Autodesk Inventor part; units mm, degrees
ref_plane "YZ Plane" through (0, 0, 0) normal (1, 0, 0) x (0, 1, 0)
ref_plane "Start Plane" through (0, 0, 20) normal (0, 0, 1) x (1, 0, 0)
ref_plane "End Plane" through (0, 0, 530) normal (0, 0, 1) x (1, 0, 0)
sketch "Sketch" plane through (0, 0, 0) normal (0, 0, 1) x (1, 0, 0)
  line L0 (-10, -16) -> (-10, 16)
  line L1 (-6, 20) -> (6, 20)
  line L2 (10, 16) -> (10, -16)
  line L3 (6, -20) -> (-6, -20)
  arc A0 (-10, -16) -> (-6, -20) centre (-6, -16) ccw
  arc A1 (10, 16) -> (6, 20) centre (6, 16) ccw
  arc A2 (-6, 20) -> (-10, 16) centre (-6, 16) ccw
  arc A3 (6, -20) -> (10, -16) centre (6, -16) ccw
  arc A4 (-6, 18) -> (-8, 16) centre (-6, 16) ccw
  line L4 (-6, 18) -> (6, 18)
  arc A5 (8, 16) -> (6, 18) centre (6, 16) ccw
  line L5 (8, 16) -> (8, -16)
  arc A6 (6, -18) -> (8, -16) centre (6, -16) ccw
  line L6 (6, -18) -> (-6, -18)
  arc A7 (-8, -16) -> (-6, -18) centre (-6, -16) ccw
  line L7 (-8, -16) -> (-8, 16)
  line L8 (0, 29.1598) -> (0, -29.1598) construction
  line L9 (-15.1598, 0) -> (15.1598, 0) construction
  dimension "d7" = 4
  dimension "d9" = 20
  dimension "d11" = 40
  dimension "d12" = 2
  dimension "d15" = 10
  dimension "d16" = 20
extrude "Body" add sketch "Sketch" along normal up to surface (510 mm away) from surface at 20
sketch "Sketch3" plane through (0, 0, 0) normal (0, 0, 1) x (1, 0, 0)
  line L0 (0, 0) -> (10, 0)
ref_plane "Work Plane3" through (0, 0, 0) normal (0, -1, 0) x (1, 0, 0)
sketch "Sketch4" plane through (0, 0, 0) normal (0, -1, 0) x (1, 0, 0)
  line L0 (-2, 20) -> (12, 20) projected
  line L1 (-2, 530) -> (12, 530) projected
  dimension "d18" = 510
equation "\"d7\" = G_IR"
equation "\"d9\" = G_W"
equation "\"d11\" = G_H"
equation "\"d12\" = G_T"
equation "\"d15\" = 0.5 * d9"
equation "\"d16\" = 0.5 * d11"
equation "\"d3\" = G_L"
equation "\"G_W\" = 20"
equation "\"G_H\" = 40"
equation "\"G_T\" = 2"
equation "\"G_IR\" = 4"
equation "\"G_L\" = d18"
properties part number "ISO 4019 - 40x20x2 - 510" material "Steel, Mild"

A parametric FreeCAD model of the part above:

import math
import FreeCAD as App
import Part
import Sketcher

doc = App.newDocument("Part")
params = doc.addObject("Spreadsheet::Sheet", "Params")
for row, (alias, value) in enumerate([
    ("sketch1_radius", "4 mm"),
    ("sketch1_radius2", "2 mm"),
    ("pad1_length", "510 mm"),
], start=1):
    params.set(f"A{row}", alias)
    params.set(f"B{row}", "=" + value)
    params.setAlias(f"B{row}", alias)

body = doc.addObject("PartDesign::Body", "Body")

sketch1 = doc.addObject("Sketcher::SketchObject", "Sketch")
body.addObject(sketch1)
sketch1.AttachmentSupport = (doc.XY_Plane, [""])
sketch1.MapMode = "FlatFace"
sketch1.AttachmentOffset = App.Placement(App.Vector(0, 0, 20), App.Rotation())
sketch1.addGeometry(Part.LineSegment(App.Vector(-10, 16, 0), App.Vector(-10, -16, 0)), False)
sketch1.addGeometry(Part.ArcOfCircle(Part.Circle(App.Vector(-6, -16, 0), App.Vector(0, 0, 1), 4), math.radians(180), math.radians(270)), False)
sketch1.addGeometry(Part.LineSegment(App.Vector(-6, -20, 0), App.Vector(6, -20, 0)), False)
sketch1.addGeometry(Part.ArcOfCircle(Part.Circle(App.Vector(6, -16, 0), App.Vector(0, 0, 1), 4), math.radians(-90), math.radians(0)), False)
sketch1.addGeometry(Part.LineSegment(App.Vector(10, -16, 0), App.Vector(10, 16, 0)), False)
sketch1.addGeometry(Part.ArcOfCircle(Part.Circle(App.Vector(6, 16, 0), App.Vector(0, 0, 1), 4), math.radians(0), math.radians(90)), False)
sketch1.addGeometry(Part.LineSegment(App.Vector(6, 20, 0), App.Vector(-6, 20, 0)), False)
sketch1.addGeometry(Part.ArcOfCircle(Part.Circle(App.Vector(-6, 16, 0), App.Vector(0, 0, 1), 4), math.radians(90), math.radians(180)), False)
sketch1.addGeometry(Part.ArcOfCircle(Part.Circle(App.Vector(-6, 16, 0), App.Vector(0, 0, 1), 2), math.radians(90), math.radians(180)), False)
sketch1.addGeometry(Part.LineSegment(App.Vector(-6, 18, 0), App.Vector(6, 18, 0)), False)
sketch1.addGeometry(Part.ArcOfCircle(Part.Circle(App.Vector(6, 16, 0), App.Vector(0, 0, 1), 2), math.radians(0), math.radians(90)), False)
sketch1.addGeometry(Part.LineSegment(App.Vector(8, 16, 0), App.Vector(8, -16, 0)), False)
sketch1.addGeometry(Part.ArcOfCircle(Part.Circle(App.Vector(6, -16, 0), App.Vector(0, 0, 1), 2), math.radians(-90), math.radians(0)), False)
sketch1.addGeometry(Part.LineSegment(App.Vector(6, -18, 0), App.Vector(-6, -18, 0)), False)
sketch1.addGeometry(Part.ArcOfCircle(Part.Circle(App.Vector(-6, -16, 0), App.Vector(0, 0, 1), 2), math.radians(180), math.radians(270)), False)
sketch1.addGeometry(Part.LineSegment(App.Vector(-8, -16, 0), App.Vector(-8, 16, 0)), False)
sketch1.addConstraint(Sketcher.Constraint("Tangent", 0, 2, 1, 1))
sketch1.addConstraint(Sketcher.Constraint("Tangent", 1, 2, 2, 1))
sketch1.addConstraint(Sketcher.Constraint("Tangent", 2, 2, 3, 1))
sketch1.addConstraint(Sketcher.Constraint("Tangent", 3, 2, 4, 1))
sketch1.addConstraint(Sketcher.Constraint("Tangent", 4, 2, 5, 1))
sketch1.addConstraint(Sketcher.Constraint("Tangent", 5, 2, 6, 1))
sketch1.addConstraint(Sketcher.Constraint("Tangent", 6, 2, 7, 1))
sketch1.addConstraint(Sketcher.Constraint("Tangent", 7, 2, 0, 1))
sketch1.addConstraint(Sketcher.Constraint("Tangent", 8, 1, 9, 1))
sketch1.addConstraint(Sketcher.Constraint("Tangent", 9, 2, 10, 2))
sketch1.addConstraint(Sketcher.Constraint("Tangent", 10, 1, 11, 1))
sketch1.addConstraint(Sketcher.Constraint("Tangent", 11, 2, 12, 2))
sketch1.addConstraint(Sketcher.Constraint("Tangent", 12, 1, 13, 1))
sketch1.addConstraint(Sketcher.Constraint("Tangent", 13, 2, 14, 2))
sketch1.addConstraint(Sketcher.Constraint("Tangent", 14, 1, 15, 1))
sketch1.addConstraint(Sketcher.Constraint("Tangent", 15, 2, 8, 2))
sketch1.addConstraint(Sketcher.Constraint("Vertical", 0))
sketch1.addConstraint(Sketcher.Constraint("Horizontal", 2))
sketch1.addConstraint(Sketcher.Constraint("Vertical", 4))
sketch1.addConstraint(Sketcher.Constraint("Horizontal", 6))
sketch1.addConstraint(Sketcher.Constraint("Horizontal", 9))
sketch1.addConstraint(Sketcher.Constraint("Vertical", 11))
sketch1.addConstraint(Sketcher.Constraint("Horizontal", 13))
sketch1.addConstraint(Sketcher.Constraint("Vertical", 15))
sketch1.addConstraint(Sketcher.Constraint("Coincident", 8, 3, 7, 3))
sketch1.addConstraint(Sketcher.Constraint("Coincident", 10, 3, 5, 3))
sketch1.addConstraint(Sketcher.Constraint("Coincident", 12, 3, 3, 3))
sketch1.addConstraint(Sketcher.Constraint("Equal", 1, 3))
sketch1.addConstraint(Sketcher.Constraint("Equal", 3, 5))
sketch1.addConstraint(Sketcher.Constraint("Equal", 5, 7))
sketch1.addConstraint(Sketcher.Constraint("Equal", 12, 14))
sketch1.addConstraint(Sketcher.Constraint("Symmetric", 1, 3, 5, 3, -1, 1))
sketch1.addConstraint(Sketcher.Constraint("Radius", 1, 4.0))
sketch1.addConstraint(Sketcher.Constraint("Radius", 8, 2.0))
sketch1.addConstraint(Sketcher.Constraint("DistanceX", 0, 2, -1, 1, 10.0))
sketch1.addConstraint(Sketcher.Constraint("DistanceY", 1, 2, -1, 1, 20.0))
sketch1.setExpression("Constraints[32]", "Params.sketch1_radius")
sketch1.setExpression("Constraints[33]", "Params.sketch1_radius2")
pad1 = doc.addObject("PartDesign::Pad", "Pad")
body.addObject(pad1)
pad1.Profile = sketch1
pad1.setExpression("Length", "Params.pad1_length")

doc.recompute()
